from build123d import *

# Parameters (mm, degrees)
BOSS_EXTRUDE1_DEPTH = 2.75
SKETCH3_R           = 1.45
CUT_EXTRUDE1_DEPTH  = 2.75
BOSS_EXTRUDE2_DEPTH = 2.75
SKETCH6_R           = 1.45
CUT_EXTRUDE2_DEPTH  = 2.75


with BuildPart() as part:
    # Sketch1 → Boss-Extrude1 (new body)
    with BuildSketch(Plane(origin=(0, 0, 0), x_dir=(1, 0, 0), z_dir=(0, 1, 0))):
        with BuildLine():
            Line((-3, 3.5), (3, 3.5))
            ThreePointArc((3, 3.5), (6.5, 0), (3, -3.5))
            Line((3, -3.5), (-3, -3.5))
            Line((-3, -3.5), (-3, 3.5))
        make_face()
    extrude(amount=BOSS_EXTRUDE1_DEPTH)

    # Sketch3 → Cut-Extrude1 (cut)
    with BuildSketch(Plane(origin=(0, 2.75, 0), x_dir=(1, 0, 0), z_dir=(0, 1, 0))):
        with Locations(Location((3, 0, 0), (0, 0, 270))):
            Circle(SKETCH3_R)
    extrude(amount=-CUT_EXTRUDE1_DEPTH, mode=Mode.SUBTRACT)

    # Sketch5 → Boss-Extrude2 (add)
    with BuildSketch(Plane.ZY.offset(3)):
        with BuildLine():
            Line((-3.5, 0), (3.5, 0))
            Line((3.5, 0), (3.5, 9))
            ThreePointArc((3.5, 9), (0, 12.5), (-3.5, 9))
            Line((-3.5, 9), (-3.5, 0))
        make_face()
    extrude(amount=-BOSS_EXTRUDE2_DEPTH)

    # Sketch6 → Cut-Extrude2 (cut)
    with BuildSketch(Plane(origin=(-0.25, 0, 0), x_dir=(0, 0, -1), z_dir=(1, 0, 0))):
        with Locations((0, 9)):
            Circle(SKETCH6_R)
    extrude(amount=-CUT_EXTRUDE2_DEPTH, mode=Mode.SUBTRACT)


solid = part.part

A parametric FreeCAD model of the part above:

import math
import FreeCAD as App
import Part
import Sketcher

V = App.Vector
Q = App.Units.Quantity

doc = App.newDocument("Part")
body = doc.addObject("PartDesign::Body", "Body")

sketch1 = body.newObject("Sketcher::SketchObject", "Sketch")
sketch1.AttachmentSupport = (doc.getObject("XZ_Plane"), [""])
sketch1.MapMode = "FlatFace"
sketch1.addGeometry([
    Part.LineSegment(V(3, -3.5, 0), V(-3, -3.5, 0)),
    Part.LineSegment(V(-3, -3.5, 0), V(-3, 3.5, 0)),
    Part.LineSegment(V(-3, 3.5, 0), V(3, 3.5, 0)),
    Part.ArcOfCircle(Part.Circle(V(3, 0, 0), V(0, 0, 1), 3.5), math.radians(-90), math.radians(90)),
], False)
sketch1.addConstraint([
    Sketcher.Constraint("Coincident", 0, 2, 1, 1),
    Sketcher.Constraint("Coincident", 1, 2, 2, 1),
    Sketcher.Constraint("Tangent", 2, 2, 3, 2),
    Sketcher.Constraint("Tangent", 3, 1, 0, 1),
    Sketcher.Constraint("Horizontal", 0),
    Sketcher.Constraint("Vertical", 1),
    Sketcher.Constraint("Horizontal", 2),
    Sketcher.Constraint("Symmetric", 0, 2, 2, 2, -1, 1),
    Sketcher.Constraint("Radius", 3, Q("3.5 mm")),
    Sketcher.Constraint("DistanceX", 0, 2, 0, 1, Q("6 mm")),
])
pad1 = body.newObject("PartDesign::Pad", "Pad")
pad1.Profile = sketch1
pad1.Length = 2.75
pad1.Reversed = True

sketch2 = body.newObject("Sketcher::SketchObject", "Sketch001")
sketch2.AttachmentSupport = (doc.getObject("XZ_Plane"), [""])
sketch2.MapMode = "FlatFace"
sketch2.AttachmentOffset = App.Placement(V(0, 0, -2.75), App.Rotation())
sketch2.addGeometry(Part.Circle(V(3, 0, 0), V(0, 0, 1), 1.45), False)
sketch2.addConstraint([
    Sketcher.Constraint("PointOnObject", 0, 3, -1),
    Sketcher.Constraint("Diameter", 0, Q("2.9 mm")),
    Sketcher.Constraint("DistanceX", -1, 1, 0, 3, Q("3 mm")),
])
pocket1 = body.newObject("PartDesign::Pocket", "Pocket")
pocket1.Profile = sketch2
pocket1.Length = 2.75
pocket1.Reversed = True

sketch3 = body.newObject("Sketcher::SketchObject", "Sketch002")
sketch3.AttachmentSupport = (doc.getObject("YZ_Plane"), [""])
sketch3.MapMode = "FlatFace"
sketch3.AttachmentOffset = App.Placement(V(0, 0, -3), App.Rotation())
sketch3.addGeometry([
    Part.LineSegment(V(0, -3.5, 0), V(0, 3.5, 0)),
    Part.LineSegment(V(0, 3.5, 0), V(9, 3.5, 0)),
    Part.ArcOfCircle(Part.Circle(V(9, 0, 0), V(0, 0, 1), 3.5), math.radians(-90), math.radians(90)),
    Part.LineSegment(V(9, -3.5, 0), V(0, -3.5, 0)),
], False)
sketch3.addConstraint([
    Sketcher.Constraint("Coincident", 0, 2, 1, 1),
    Sketcher.Constraint("Tangent", 1, 2, 2, 2),
    Sketcher.Constraint("Tangent", 2, 1, 3, 1),
    Sketcher.Constraint("Coincident", 3, 2, 0, 1),
    Sketcher.Constraint("Vertical", 0),
    Sketcher.Constraint("Horizontal", 1),
    Sketcher.Constraint("Horizontal", 3),
    Sketcher.Constraint("Symmetric", 0, 2, 3, 2, -1, 1),
    Sketcher.Constraint("Radius", 2, Q("3.5 mm")),
    Sketcher.Constraint("DistanceX", 1, 1, 1, 2, Q("9 mm")),
])
pad2 = body.newObject("PartDesign::Pad", "Pad001")
pad2.Profile = sketch3
pad2.Length = 2.75

sketch4 = body.newObject("Sketcher::SketchObject", "Sketch003")
sketch4.AttachmentSupport = (doc.getObject("YZ_Plane"), [""])
sketch4.MapMode = "FlatFace"
sketch4.AttachmentOffset = App.Placement(V(0, 0, -0.25), App.Rotation())
sketch4.addGeometry(Part.Circle(V(9, 0, 0), V(0, 0, 1), 1.45), False)
sketch4.addConstraint([
    Sketcher.Constraint("PointOnObject", 0, 3, -1),
    Sketcher.Constraint("Diameter", 0, Q("2.9 mm")),
    Sketcher.Constraint("DistanceX", -1, 1, 0, 3, Q("9 mm")),
])
pocket2 = body.newObject("PartDesign::Pocket", "Pocket001")
pocket2.Profile = sketch4
pocket2.Length = 2.75

doc.recompute()
